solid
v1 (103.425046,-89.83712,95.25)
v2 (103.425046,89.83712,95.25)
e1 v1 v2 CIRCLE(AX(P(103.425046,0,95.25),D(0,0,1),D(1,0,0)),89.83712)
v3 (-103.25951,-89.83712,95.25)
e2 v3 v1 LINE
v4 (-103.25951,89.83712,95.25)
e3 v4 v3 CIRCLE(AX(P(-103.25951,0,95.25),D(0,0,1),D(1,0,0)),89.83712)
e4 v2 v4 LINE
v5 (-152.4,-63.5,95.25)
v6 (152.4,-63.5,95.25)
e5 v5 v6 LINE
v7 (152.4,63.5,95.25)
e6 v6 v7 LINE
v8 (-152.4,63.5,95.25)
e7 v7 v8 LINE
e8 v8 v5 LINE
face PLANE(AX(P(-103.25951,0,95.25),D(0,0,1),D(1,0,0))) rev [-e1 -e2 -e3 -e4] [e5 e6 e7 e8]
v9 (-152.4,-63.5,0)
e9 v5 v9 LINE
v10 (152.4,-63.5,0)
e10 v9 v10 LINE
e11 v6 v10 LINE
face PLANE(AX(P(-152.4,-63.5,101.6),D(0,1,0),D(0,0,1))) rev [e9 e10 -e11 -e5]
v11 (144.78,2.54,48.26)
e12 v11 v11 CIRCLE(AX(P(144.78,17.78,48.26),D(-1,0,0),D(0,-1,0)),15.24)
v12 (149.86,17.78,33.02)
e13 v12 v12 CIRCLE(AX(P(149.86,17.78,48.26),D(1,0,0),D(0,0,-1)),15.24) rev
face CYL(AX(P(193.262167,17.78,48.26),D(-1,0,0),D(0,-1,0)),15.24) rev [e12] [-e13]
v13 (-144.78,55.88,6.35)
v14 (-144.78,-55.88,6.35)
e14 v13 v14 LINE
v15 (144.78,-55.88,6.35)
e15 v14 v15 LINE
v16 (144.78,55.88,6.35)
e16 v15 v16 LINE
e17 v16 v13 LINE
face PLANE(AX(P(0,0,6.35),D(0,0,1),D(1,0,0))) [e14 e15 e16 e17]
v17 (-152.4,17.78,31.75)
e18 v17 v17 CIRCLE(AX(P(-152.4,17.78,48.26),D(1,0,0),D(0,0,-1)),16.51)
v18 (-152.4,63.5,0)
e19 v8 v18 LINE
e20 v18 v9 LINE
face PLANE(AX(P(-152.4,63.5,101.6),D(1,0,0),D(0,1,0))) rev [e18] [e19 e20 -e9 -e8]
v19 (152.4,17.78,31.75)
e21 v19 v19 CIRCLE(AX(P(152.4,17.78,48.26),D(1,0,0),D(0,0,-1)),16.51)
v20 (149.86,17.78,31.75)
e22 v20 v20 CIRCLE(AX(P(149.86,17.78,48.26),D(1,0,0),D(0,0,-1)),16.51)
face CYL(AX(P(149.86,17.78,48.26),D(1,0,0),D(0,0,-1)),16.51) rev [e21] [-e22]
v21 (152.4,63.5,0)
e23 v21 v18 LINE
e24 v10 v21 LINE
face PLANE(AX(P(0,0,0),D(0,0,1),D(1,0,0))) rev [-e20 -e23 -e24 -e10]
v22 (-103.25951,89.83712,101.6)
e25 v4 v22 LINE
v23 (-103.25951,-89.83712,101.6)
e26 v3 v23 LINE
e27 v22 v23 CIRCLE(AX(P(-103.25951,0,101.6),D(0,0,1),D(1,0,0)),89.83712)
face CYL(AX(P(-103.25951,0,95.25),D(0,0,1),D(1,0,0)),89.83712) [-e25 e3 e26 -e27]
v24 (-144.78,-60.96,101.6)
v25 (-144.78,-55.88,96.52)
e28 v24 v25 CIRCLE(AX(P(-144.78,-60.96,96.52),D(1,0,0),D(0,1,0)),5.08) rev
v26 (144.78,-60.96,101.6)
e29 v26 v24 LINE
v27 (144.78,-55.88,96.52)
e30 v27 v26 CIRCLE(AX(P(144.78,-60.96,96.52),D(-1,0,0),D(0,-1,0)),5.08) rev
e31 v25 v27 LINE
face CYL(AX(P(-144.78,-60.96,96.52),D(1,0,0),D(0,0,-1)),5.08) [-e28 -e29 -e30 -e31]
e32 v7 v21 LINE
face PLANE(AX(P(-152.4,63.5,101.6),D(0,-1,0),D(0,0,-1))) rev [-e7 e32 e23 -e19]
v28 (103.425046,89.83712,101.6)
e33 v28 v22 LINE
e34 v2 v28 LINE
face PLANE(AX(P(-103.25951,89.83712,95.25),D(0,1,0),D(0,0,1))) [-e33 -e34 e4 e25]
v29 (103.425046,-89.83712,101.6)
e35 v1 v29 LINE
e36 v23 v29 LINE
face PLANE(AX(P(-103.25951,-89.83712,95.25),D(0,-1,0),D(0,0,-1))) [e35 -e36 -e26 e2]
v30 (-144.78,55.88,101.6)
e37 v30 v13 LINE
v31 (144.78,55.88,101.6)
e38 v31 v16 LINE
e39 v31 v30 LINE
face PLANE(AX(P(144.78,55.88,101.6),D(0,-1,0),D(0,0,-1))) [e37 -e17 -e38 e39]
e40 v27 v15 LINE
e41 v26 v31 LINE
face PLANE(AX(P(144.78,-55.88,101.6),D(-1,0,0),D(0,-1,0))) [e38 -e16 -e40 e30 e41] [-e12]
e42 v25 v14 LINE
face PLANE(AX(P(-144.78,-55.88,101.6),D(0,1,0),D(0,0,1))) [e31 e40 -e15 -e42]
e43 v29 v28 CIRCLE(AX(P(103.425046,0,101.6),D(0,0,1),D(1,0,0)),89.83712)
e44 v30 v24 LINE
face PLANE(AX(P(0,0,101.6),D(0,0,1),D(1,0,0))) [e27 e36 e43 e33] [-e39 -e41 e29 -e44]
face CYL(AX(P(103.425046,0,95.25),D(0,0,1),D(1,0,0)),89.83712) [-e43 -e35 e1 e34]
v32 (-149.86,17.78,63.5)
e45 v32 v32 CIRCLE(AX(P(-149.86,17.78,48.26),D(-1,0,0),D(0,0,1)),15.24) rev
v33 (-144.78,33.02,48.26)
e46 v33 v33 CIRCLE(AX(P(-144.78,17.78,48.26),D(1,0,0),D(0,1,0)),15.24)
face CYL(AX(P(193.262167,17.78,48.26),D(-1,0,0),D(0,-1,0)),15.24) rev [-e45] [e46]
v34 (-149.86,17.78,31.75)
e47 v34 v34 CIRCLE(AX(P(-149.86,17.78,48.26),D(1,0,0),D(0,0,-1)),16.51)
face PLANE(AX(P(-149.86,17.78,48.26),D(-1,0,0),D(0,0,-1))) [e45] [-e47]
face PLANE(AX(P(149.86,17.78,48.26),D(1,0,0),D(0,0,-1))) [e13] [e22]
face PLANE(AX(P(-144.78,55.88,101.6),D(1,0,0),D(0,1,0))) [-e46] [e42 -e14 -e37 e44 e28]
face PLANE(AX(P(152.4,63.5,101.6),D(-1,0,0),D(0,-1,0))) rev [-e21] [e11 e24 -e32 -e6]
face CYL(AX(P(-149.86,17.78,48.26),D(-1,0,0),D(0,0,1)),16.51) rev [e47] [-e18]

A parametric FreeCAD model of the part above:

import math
import FreeCAD as App
import Part
import Sketcher
from FreeCAD import Vector
Q = App.Units.Quantity


def edges_at(feature, points):
    """Names of the edges that pass closest to the given points."""
    edges = feature.Shape.Edges
    near = lambda p: min(range(len(edges)), key=lambda i: edges[i].distToShape(Part.Vertex(*p))[0])
    return sorted({f"Edge{near(p) + 1}" for p in points})


def add_polygon(sketch, points):
    """Adds a closed chain of lines whose ends are joined by coincident constraints."""
    first, n = sketch.GeometryCount, len(points)
    for a, b in zip(points, points[1:] + points[:1]):
        sketch.addGeometry(Part.LineSegment(App.Vector(*a, 0), App.Vector(*b, 0)), False)
    for i in range(n):
        sketch.addConstraint(Sketcher.Constraint("Coincident", first + i, 2, first + (i + 1) % n, 1))

doc = App.newDocument("Part")
body = doc.addObject("PartDesign::Body", "Body")

# Sketch on XY plane
sketch1 = doc.addObject("Sketcher::SketchObject", "Sketch")
body.addObject(sketch1)
sketch1.AttachmentSupport = (doc.XY_Plane, [""])
sketch1.MapMode = "FlatFace"
add_polygon(sketch1, [(-152, 64), (-152, -64), (152, -64), (152, 64)])  # lines 0-3
sketch1.addConstraint(Sketcher.Constraint("Vertical", 0))
sketch1.addConstraint(Sketcher.Constraint("Horizontal", 1))
sketch1.addConstraint(Sketcher.Constraint("Vertical", 2))
sketch1.addConstraint(Sketcher.Constraint("Horizontal", 3))
sketch1.addConstraint(Sketcher.Constraint("Symmetric", 0, 2, 2, 2, -1, 1))
sketch1.addConstraint(Sketcher.Constraint("DistanceX", 1, 1, 1, 2, Q("12 in")))
sketch1.addConstraint(Sketcher.Constraint("DistanceY", 0, 2, 0, 1, Q("5 in")))
pad1 = doc.addObject("PartDesign::Pad", "Pad")
body.addObject(pad1)
pad1.Profile = sketch1
pad1.Length = Q("4 in")

# Sketch on XY plane
sketch2 = doc.addObject("Sketcher::SketchObject", "Sketch001")
body.addObject(sketch2)
sketch2.AttachmentSupport = (doc.XY_Plane, [""])
sketch2.MapMode = "FlatFace"
sketch2.AttachmentOffset = App.Placement(Vector(0, 0, 4 * 25.4), App.Rotation())
add_polygon(sketch2, [(145, 56), (-145, 56), (-145, -56), (145, -56)])  # lines 0-3
sketch2.addConstraint(Sketcher.Constraint("Horizontal", 0))
sketch2.addConstraint(Sketcher.Constraint("Vertical", 1))
sketch2.addConstraint(Sketcher.Constraint("Horizontal", 2))
sketch2.addConstraint(Sketcher.Constraint("Vertical", 3))
sketch2.addConstraint(Sketcher.Constraint("Symmetric", 0, 2, 2, 2, -1, 1))
sketch2.addConstraint(Sketcher.Constraint("DistanceX", 0, 2, 0, 1, Q("11.4 in")))
sketch2.addConstraint(Sketcher.Constraint("DistanceY", 1, 2, 1, 1, Q("4.4 in")))
pocket1 = doc.addObject("PartDesign::Pocket", "Pocket")
body.addObject(pocket1)
pocket1.Profile = sketch2
pocket1.Length = Q("3.75 in")

# Sketch on XY plane
sketch3 = doc.addObject("Sketcher::SketchObject", "Sketch002")
body.addObject(sketch3)
sketch3.AttachmentSupport = (doc.XY_Plane, [""])
sketch3.MapMode = "FlatFace"
sketch3.AttachmentOffset = App.Placement(Vector(0, 0, 4 * 25.4), App.Rotation())
sketch3.addGeometry(Part.LineSegment(Vector(103, 90, 0), Vector(-103, 90, 0)), False)  # 0
sketch3.addGeometry(Part.ArcOfCircle(Part.Circle(Vector(-103, 0, 0), Vector(0, 0, 1), 90), math.radians(90), math.radians(270)), False)  # 1
sketch3.addGeometry(Part.LineSegment(Vector(-103, -90, 0), Vector(103, -90, 0)), False)  # 2
sketch3.addGeometry(Part.ArcOfCircle(Part.Circle(Vector(103, 0, 0), Vector(0, 0, 1), 90), math.radians(-90), math.radians(90)), False)  # 3
add_polygon(sketch3, [(-145, -56), (-145, 56), (145, 56), (145, -56)])  # lines 4-7
sketch3.addConstraint(Sketcher.Constraint("Tangent", 0, 2, 1, 1))
sketch3.addConstraint(Sketcher.Constraint("Tangent", 1, 2, 2, 1))
sketch3.addConstraint(Sketcher.Constraint("Tangent", 2, 2, 3, 1))
sketch3.addConstraint(Sketcher.Constraint("Tangent", 3, 2, 0, 1))
sketch3.addConstraint(Sketcher.Constraint("Horizontal", 0))
sketch3.addConstraint(Sketcher.Constraint("Horizontal", 2))
sketch3.addConstraint(Sketcher.Constraint("Vertical", 4))
sketch3.addConstraint(Sketcher.Constraint("Horizontal", 5))
sketch3.addConstraint(Sketcher.Constraint("Vertical", 6))
sketch3.addConstraint(Sketcher.Constraint("Horizontal", 7))
sketch3.addConstraint(Sketcher.Constraint("Symmetric", 4, 2, 6, 2, -1, 1))
sketch3.addConstraint(Sketcher.Constraint("PointOnObject", 1, 3, -1))
sketch3.addConstraint(Sketcher.Constraint("DistanceX", 5, 1, 5, 2, Q("11.4 in")))
sketch3.addConstraint(Sketcher.Constraint("DistanceY", 4, 1, 4, 2, Q("4.4 in")))
sketch3.addConstraint(Sketcher.Constraint("Radius", 1, Q("89.83712 mm")))
sketch3.addConstraint(Sketcher.Constraint("DistanceX", 0, 2, 0, 1, Q("206.684557 mm")))
sketch3.addConstraint(Sketcher.Constraint("DistanceX", 1, 3, -1, 1, Q("103.25951 mm")))
pad2 = doc.addObject("PartDesign::Pad", "Pad001")
body.addObject(pad2)
pad2.Profile = sketch3
pad2.Length = Q("0.25 in")
pad2.Reversed = True

# Sketch on YZ plane
sketch4 = doc.addObject("Sketcher::SketchObject", "Sketch003")
body.addObject(sketch4)
sketch4.AttachmentSupport = (doc.YZ_Plane, [""])
sketch4.MapMode = "FlatFace"
sketch4.AttachmentOffset = App.Placement(Vector(0, 0, -6 * 25.4), App.Rotation())
sketch4.addGeometry(Part.Circle(Vector(18, 48, 0), Vector(0, 0, 1), 15), False)
sketch4.addConstraint(Sketcher.Constraint("Diameter", 0, Q("1.2 in")))
sketch4.addConstraint(Sketcher.Constraint("DistanceX", -1, 1, 0, 3, Q("0.7 in")))
sketch4.addConstraint(Sketcher.Constraint("DistanceY", -1, 1, 0, 3, Q("1.9 in")))
pocket2 = doc.addObject("PartDesign::Pocket", "Pocket001")
body.addObject(pocket2)
pocket2.Profile = sketch4
pocket2.Type = "ThroughAll"
pocket2.Reversed = True
doc.recompute()

fillet = doc.addObject("PartDesign::Fillet", "Fillet")
body.addObject(fillet)
fillet.Base = (pocket2, edges_at(pocket2, [(0, -55.88, 101.6)]))
fillet.Radius = Q("0.2 in")

# Sketch on YZ plane
sketch5 = doc.addObject("Sketcher::SketchObject", "Sketch004")
body.addObject(sketch5)
sketch5.AttachmentSupport = (doc.YZ_Plane, [""])
sketch5.MapMode = "FlatFace"
sketch5.AttachmentOffset = App.Placement(Vector(0, 0, 6 * 25.4), App.Rotation())
sketch5.addGeometry(Part.Circle(Vector(18, 48, 0), Vector(0, 0, 1), 17), False)
sketch5.addConstraint(Sketcher.Constraint("Diameter", 0, Q("1.3 in")))
sketch5.addConstraint(Sketcher.Constraint("DistanceX", -1, 1, 0, 3, Q("0.7 in")))
sketch5.addConstraint(Sketcher.Constraint("DistanceY", -1, 1, 0, 3, Q("1.9 in")))
pocket3 = doc.addObject("PartDesign::Pocket", "Pocket002")
body.addObject(pocket3)
pocket3.Profile = sketch5
pocket3.Length = Q("0.1 in")
doc.recompute()

mirrored = doc.addObject("PartDesign::Mirrored", "Mirrored")
body.addObject(mirrored)
mirrored.Originals = [pocket3]
mirrored.MirrorPlane = (doc.YZ_Plane, [""])
body.Tip = mirrored

doc.recompute()
